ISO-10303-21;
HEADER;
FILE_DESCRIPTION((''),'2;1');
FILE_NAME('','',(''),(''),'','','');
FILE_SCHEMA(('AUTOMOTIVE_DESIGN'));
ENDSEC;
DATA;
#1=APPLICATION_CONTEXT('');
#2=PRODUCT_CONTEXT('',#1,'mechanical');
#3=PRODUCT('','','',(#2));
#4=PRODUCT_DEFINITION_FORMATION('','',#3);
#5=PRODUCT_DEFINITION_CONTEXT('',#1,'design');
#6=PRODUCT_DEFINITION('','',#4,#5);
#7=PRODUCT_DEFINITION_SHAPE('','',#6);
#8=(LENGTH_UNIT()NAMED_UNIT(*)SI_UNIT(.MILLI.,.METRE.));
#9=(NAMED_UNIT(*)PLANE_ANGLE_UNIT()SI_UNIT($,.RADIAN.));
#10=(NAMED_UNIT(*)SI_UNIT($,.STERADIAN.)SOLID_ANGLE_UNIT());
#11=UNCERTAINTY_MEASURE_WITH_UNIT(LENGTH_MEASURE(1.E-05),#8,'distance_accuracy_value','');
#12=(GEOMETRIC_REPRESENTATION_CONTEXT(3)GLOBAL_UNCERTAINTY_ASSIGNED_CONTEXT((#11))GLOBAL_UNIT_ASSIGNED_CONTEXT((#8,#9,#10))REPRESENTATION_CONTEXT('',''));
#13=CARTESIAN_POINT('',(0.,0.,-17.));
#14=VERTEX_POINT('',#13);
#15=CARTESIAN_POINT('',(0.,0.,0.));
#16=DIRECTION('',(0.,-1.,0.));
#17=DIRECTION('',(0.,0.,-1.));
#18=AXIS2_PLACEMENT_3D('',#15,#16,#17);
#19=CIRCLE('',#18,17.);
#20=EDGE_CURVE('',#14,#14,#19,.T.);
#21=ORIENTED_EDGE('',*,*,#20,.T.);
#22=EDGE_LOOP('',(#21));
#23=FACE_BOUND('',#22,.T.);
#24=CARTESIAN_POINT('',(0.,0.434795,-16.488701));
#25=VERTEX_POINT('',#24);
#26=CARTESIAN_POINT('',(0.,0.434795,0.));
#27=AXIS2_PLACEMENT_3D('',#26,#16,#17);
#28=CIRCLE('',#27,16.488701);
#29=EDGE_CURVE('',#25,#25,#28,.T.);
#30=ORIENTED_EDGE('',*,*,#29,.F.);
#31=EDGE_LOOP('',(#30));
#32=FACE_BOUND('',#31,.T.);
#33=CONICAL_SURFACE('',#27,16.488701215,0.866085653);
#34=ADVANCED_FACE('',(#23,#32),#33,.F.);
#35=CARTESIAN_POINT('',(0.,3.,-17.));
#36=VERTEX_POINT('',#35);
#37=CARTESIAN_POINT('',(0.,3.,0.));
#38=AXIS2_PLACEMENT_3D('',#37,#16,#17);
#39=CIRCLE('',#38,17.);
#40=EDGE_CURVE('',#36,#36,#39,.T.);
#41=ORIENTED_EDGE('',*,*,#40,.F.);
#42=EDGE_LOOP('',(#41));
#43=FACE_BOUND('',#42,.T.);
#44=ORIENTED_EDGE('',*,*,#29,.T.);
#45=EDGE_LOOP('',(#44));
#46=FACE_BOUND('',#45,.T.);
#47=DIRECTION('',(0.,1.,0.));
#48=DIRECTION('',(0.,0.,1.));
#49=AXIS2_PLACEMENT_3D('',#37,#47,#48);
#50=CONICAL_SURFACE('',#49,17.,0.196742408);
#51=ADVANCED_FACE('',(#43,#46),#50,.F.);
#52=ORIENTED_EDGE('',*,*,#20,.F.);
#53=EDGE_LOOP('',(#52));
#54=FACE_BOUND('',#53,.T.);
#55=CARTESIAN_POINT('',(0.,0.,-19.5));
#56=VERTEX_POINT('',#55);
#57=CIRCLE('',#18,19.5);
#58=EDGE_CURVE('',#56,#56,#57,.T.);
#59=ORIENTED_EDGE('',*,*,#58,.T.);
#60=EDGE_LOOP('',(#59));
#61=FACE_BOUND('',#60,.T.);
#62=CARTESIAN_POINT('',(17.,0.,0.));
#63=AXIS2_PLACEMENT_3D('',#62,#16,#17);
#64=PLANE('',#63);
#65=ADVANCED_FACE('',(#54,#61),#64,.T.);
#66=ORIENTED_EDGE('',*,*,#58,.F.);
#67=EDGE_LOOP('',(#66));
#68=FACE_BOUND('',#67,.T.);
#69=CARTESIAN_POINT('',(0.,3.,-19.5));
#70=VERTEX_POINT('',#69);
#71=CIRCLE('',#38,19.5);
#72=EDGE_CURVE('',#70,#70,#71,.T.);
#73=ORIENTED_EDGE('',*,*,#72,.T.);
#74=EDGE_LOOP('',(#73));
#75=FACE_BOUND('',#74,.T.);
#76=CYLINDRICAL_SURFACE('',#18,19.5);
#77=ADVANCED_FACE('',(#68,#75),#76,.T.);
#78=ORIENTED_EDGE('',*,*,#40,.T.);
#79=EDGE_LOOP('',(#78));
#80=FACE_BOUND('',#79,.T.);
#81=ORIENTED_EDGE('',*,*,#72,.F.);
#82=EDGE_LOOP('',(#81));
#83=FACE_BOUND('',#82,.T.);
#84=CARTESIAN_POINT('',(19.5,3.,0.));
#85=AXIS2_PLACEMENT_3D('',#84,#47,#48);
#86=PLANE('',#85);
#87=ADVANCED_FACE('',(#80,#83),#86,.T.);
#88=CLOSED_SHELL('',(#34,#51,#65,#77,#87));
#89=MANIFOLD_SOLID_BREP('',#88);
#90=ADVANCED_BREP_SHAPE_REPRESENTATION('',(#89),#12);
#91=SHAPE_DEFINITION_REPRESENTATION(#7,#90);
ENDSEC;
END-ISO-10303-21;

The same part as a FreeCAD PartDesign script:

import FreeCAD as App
import Part
import Sketcher

V = App.Vector
Q = App.Units.Quantity

doc = App.newDocument("Part")
body = doc.addObject("PartDesign::Body", "Body")

sketch1 = body.newObject("Sketcher::SketchObject", "Sketch")
sketch1.AttachmentSupport = (doc.getObject("XY_Plane"), [""])
sketch1.MapMode = "FlatFace"
sketch1.addGeometry([
    Part.LineSegment(V(17, 0, 0), V(19.5, 0, 0)),
    Part.LineSegment(V(19.5, 0, 0), V(19.5, 3, 0)),
    Part.LineSegment(V(19.5, 3, 0), V(17, 3, 0)),
    Part.LineSegment(V(17, 3, 0), V(16.5, 0.4, 0)),
    Part.LineSegment(V(16.5, 0.4, 0), V(17, 0, 0)),
], False)
sketch1.addConstraint([
    Sketcher.Constraint("Coincident", 0, 2, 1, 1),
    Sketcher.Constraint("Coincident", 1, 2, 2, 1),
    Sketcher.Constraint("Coincident", 2, 2, 3, 1),
    Sketcher.Constraint("Coincident", 3, 2, 4, 1),
    Sketcher.Constraint("Coincident", 4, 2, 0, 1),
    Sketcher.Constraint("Horizontal", 0),
    Sketcher.Constraint("Vertical", 1),
    Sketcher.Constraint("Horizontal", 2),
    Sketcher.Constraint("PointOnObject", 0, 2, -1),
    Sketcher.Constraint("Vertical", 2, 2, 4, 2),
    Sketcher.Constraint("DistanceY", 1, 1, 1, 2, Q("3 mm")),
    Sketcher.Constraint("DistanceX", 0, 1, 0, 2, Q("2.5 mm")),
    Sketcher.Constraint("DistanceX", -1, 1, 2, 2, Q("17 mm")),
    Sketcher.Constraint("DistanceX", -1, 1, 3, 2, Q("16.488701 mm")),
    Sketcher.Constraint("Distance", 3, Q("2.615665 mm")),
])
revolution = body.newObject("PartDesign::Revolution", "Revolution")
revolution.Profile = sketch1
revolution.ReferenceAxis = (sketch1, ["V_Axis"])
revolution.Angle = 360

doc.recompute()
